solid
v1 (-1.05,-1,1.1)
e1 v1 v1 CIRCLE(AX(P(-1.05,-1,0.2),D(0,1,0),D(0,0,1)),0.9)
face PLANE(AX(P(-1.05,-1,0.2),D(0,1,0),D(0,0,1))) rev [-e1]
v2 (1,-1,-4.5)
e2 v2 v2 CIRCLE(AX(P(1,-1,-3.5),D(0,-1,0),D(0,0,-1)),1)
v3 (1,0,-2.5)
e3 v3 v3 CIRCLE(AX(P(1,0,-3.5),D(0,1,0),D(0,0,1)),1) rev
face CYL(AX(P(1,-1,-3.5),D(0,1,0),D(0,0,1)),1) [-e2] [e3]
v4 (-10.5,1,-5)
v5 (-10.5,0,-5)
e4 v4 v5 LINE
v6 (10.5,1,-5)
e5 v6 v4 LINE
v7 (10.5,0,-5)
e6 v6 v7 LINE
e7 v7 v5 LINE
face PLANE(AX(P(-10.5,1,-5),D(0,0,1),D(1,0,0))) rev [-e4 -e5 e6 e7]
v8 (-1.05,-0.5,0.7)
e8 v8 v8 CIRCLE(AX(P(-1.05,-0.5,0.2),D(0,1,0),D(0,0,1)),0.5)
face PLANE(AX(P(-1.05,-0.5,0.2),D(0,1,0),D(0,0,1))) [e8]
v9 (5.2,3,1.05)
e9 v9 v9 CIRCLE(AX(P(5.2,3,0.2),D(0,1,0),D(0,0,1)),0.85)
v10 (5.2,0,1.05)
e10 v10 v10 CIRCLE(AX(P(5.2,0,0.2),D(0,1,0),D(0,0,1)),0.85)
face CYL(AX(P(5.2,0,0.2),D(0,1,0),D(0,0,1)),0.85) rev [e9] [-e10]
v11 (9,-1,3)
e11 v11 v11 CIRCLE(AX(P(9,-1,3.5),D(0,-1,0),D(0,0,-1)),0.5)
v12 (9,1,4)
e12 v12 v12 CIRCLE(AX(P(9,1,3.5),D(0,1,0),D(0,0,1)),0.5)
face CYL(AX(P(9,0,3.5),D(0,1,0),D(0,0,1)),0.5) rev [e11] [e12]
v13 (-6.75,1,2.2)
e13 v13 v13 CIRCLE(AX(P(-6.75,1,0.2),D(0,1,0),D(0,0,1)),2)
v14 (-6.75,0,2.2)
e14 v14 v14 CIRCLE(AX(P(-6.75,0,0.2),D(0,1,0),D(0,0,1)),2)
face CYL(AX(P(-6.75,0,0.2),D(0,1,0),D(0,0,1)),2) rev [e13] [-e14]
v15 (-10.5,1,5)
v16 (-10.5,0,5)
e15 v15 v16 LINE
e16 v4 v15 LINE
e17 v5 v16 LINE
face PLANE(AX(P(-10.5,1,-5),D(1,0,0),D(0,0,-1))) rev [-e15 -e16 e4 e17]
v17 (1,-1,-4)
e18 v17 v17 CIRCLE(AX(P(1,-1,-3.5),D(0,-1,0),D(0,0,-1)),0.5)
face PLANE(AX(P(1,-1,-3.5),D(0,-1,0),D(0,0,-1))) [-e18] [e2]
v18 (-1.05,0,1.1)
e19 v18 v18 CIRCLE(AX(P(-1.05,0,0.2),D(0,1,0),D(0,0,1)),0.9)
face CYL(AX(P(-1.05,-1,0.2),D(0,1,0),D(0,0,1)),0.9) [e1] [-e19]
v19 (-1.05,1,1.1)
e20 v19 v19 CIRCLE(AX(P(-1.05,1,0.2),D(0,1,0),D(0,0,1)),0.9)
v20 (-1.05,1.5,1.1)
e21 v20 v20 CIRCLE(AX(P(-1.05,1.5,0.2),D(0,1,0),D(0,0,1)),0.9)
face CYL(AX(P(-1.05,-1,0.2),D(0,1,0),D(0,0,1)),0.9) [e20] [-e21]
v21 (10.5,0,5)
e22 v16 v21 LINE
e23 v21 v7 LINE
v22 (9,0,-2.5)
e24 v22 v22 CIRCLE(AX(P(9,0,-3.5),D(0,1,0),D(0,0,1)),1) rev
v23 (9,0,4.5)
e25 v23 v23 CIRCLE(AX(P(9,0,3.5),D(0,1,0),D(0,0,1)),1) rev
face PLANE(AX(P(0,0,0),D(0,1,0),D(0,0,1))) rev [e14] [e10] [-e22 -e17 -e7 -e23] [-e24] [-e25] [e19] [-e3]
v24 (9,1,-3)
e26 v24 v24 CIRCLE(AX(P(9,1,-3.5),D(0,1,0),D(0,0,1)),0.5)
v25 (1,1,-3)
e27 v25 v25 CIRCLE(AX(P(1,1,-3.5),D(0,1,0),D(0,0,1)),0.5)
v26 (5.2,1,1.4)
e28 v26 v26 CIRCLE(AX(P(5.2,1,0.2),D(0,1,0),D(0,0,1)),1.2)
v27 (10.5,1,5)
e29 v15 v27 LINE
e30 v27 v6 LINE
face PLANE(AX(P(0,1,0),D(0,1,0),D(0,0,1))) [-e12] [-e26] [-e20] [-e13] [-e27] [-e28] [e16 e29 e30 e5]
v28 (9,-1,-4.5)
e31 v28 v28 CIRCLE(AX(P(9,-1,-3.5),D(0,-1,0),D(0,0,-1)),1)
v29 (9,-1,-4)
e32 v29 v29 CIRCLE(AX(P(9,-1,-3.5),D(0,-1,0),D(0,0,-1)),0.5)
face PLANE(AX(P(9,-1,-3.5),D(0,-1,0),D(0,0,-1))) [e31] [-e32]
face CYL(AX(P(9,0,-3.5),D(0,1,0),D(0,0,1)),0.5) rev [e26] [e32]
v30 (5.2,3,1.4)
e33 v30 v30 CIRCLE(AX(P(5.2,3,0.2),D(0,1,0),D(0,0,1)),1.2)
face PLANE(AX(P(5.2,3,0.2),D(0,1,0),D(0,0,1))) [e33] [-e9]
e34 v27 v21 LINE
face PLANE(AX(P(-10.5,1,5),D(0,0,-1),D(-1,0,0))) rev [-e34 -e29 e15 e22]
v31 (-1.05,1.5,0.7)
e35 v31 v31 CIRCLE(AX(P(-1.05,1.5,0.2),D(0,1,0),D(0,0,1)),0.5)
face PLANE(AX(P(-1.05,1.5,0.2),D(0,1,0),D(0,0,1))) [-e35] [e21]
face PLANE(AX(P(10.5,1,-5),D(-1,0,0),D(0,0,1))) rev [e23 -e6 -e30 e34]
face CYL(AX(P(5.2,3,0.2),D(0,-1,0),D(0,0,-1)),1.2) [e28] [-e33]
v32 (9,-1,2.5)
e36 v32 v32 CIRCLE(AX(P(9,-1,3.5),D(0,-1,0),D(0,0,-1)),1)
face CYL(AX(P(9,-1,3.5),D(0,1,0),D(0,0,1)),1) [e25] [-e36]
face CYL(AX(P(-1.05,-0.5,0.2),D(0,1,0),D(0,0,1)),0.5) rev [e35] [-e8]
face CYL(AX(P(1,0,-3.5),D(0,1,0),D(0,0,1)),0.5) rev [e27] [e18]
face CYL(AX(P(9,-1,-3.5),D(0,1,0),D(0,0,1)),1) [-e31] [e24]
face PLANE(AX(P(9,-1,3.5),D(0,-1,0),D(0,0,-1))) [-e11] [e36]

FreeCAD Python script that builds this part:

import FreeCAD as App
import Part
import Sketcher

V = App.Vector

doc = App.newDocument("Part")
body = doc.addObject("PartDesign::Body", "Body")

# Sketch on XZ plane
sketch1 = body.newObject("Sketcher::SketchObject", "Sketch")
sketch1.AttachmentSupport = (doc.getObject("XZ_Plane"), [""])
sketch1.MapMode = "FlatFace"
sketch1.addGeometry(Part.LineSegment(V(-10, -5, 0), V(-10, 5, 0)), False)
sketch1.addGeometry(Part.LineSegment(V(-10, 5, 0), V(10, 5, 0)), False)
sketch1.addGeometry(Part.LineSegment(V(10, 5, 0), V(10, -5, 0)), False)
sketch1.addGeometry(Part.LineSegment(V(10, -5, 0), V(-10, -5, 0)), False)
sketch1.addConstraint(Sketcher.Constraint("Coincident", 0, 2, 1, 1))
sketch1.addConstraint(Sketcher.Constraint("Coincident", 1, 2, 2, 1))
sketch1.addConstraint(Sketcher.Constraint("Coincident", 2, 2, 3, 1))
sketch1.addConstraint(Sketcher.Constraint("Coincident", 3, 2, 0, 1))
sketch1.addConstraint(Sketcher.Constraint("Vertical", 0))
sketch1.addConstraint(Sketcher.Constraint("Horizontal", 1))
sketch1.addConstraint(Sketcher.Constraint("Vertical", 2))
sketch1.addConstraint(Sketcher.Constraint("Horizontal", 3))
sketch1.addConstraint(Sketcher.Constraint("Symmetric", 0, 2, 2, 2, -1, 1))
sketch1.addConstraint(Sketcher.Constraint("DistanceX", 1, 1, 1, 2, 21.0))
sketch1.addConstraint(Sketcher.Constraint("DistanceY", 0, 1, 0, 2, 10.0))
pad1 = body.newObject("PartDesign::Pad", "Pad")
pad1.Profile = sketch1
pad1.Length = 1
pad1.Reversed = True

# Sketch on XZ plane
sketch2 = body.newObject("Sketcher::SketchObject", "Sketch001")
sketch2.AttachmentSupport = (doc.getObject("XZ_Plane"), [""])
sketch2.MapMode = "FlatFace"
sketch2.AttachmentOffset = App.Placement(V(0, 0, -1), App.Rotation())
sketch2.addGeometry(Part.Circle(V(5.2, 0.2, 0), V(0, 0, 1), 1.2), False)
sketch2.addConstraint(Sketcher.Constraint("Diameter", 0, 2.4))
sketch2.addConstraint(Sketcher.Constraint("DistanceX", -1, 1, 0, 3, 5.2))
sketch2.addConstraint(Sketcher.Constraint("DistanceY", -1, 1, 0, 3, 0.2))
pad2 = body.newObject("PartDesign::Pad", "Pad001")
pad2.Profile = sketch2
pad2.Length = 2
pad2.Reversed = True

# Sketch on XZ plane
sketch3 = body.newObject("Sketcher::SketchObject", "Sketch002")
sketch3.AttachmentSupport = (doc.getObject("XZ_Plane"), [""])
sketch3.MapMode = "FlatFace"
sketch3.AttachmentOffset = App.Placement(V(0, 0, -3), App.Rotation())
sketch3.addGeometry(Part.Circle(V(5.2, 0.2, 0), V(0, 0, 1), 0.8), False)
sketch3.addConstraint(Sketcher.Constraint("Diameter", 0, 1.7))
sketch3.addConstraint(Sketcher.Constraint("DistanceX", -1, 1, 0, 3, 5.2))
sketch3.addConstraint(Sketcher.Constraint("DistanceY", -1, 1, 0, 3, 0.2))
pocket1 = body.newObject("PartDesign::Pocket", "Pocket")
pocket1.Profile = sketch3
pocket1.Length = 3
pocket1.Reversed = True

# Sketch on XZ plane
sketch4 = body.newObject("Sketcher::SketchObject", "Sketch003")
sketch4.AttachmentSupport = (doc.getObject("XZ_Plane"), [""])
sketch4.MapMode = "FlatFace"
sketch4.AttachmentOffset = App.Placement(V(0, 0, -1), App.Rotation())
sketch4.addGeometry(Part.Circle(V(-1.1, 0.2, 0), V(0, 0, 1), 0.9), False)
sketch4.addConstraint(Sketcher.Constraint("Diameter", 0, 1.8))
sketch4.addConstraint(Sketcher.Constraint("DistanceY", -1, 1, 0, 3, 0.2))
sketch4.addConstraint(Sketcher.Constraint("DistanceX", 0, 3, -1, 1, 1.05))
pad3 = body.newObject("PartDesign::Pad", "Pad002")
pad3.Profile = sketch4
pad3.Type = "TwoLengths"
pad3.Length = 0.5
pad3.Length2 = 2
pad3.Reversed = True

# Sketch on XZ plane
sketch5 = body.newObject("Sketcher::SketchObject", "Sketch004")
sketch5.AttachmentSupport = (doc.getObject("XZ_Plane"), [""])
sketch5.MapMode = "FlatFace"
sketch5.AttachmentOffset = App.Placement(V(0, 0, -1), App.Rotation())
sketch5.addGeometry(Part.Circle(V(-6.8, 0.2, 0), V(0, 0, 1), 2), False)
sketch5.addConstraint(Sketcher.Constraint("Diameter", 0, 4.0))
sketch5.addConstraint(Sketcher.Constraint("DistanceY", -1, 1, 0, 3, 0.2))
sketch5.addConstraint(Sketcher.Constraint("DistanceX", 0, 3, -1, 1, 6.75))
pocket2 = body.newObject("PartDesign::Pocket", "Pocket001")
pocket2.Profile = sketch5
pocket2.Length = 1
pocket2.Reversed = True

# Sketch on XZ plane
sketch6 = body.newObject("Sketcher::SketchObject", "Sketch005")
sketch6.AttachmentSupport = (doc.getObject("XZ_Plane"), [""])
sketch6.MapMode = "FlatFace"
sketch6.AttachmentOffset = App.Placement(V(0, 0, -1), App.Rotation())
sketch6.addGeometry(Part.Circle(V(9, -3.5, 0), V(0, 0, 1), 0.5), False)
sketch6.addGeometry(Part.Circle(V(1, -3.5, 0), V(0, 0, 1), 0.5), False)
sketch6.addGeometry(Part.Circle(V(9, 3.5, 0), V(0, 0, 1), 0.5), False)
sketch6.addConstraint(Sketcher.Constraint("Equal", 0, 1))
sketch6.addConstraint(Sketcher.Constraint("Equal", 1, 2))
sketch6.addConstraint(Sketcher.Constraint("Symmetric", 0, 3, 2, 3, -1))
sketch6.addConstraint(Sketcher.Constraint("Horizontal", 0, 3, 1, 3))
sketch6.addConstraint(Sketcher.Constraint("Diameter", 0, 1.0))
sketch6.addConstraint(Sketcher.Constraint("DistanceX", -1, 1, 0, 3, 9.0))
sketch6.addConstraint(Sketcher.Constraint("DistanceX", -1, 1, 1, 3, 1.0))
sketch6.addConstraint(Sketcher.Constraint("DistanceY", 0, 3, 2, 3, 7.0))
pocket3 = body.newObject("PartDesign::Pocket", "Pocket002")
pocket3.Profile = sketch6
pocket3.Length = 1
pocket3.Reversed = True

# Sketch on XZ plane
sketch7 = body.newObject("Sketcher::SketchObject", "Sketch006")
sketch7.AttachmentSupport = (doc.getObject("XZ_Plane"), [""])
sketch7.MapMode = "FlatFace"
sketch7.AttachmentOffset = App.Placement(V(0, 0, -1.5), App.Rotation())
sketch7.addGeometry(Part.Circle(V(-1.1, 0.2, 0), V(0, 0, 1), 0.5), False)
sketch7.addConstraint(Sketcher.Constraint("Diameter", 0, 1.0))
sketch7.addConstraint(Sketcher.Constraint("DistanceY", -1, 1, 0, 3, 0.2))
sketch7.addConstraint(Sketcher.Constraint("DistanceX", 0, 3, -1, 1, 1.05))
pocket4 = body.newObject("PartDesign::Pocket", "Pocket003")
pocket4.Profile = sketch7
pocket4.Length = 2
pocket4.Reversed = True

# Sketch on XZ plane
sketch8 = body.newObject("Sketcher::SketchObject", "Sketch007")
sketch8.AttachmentSupport = (doc.getObject("XZ_Plane"), [""])
sketch8.MapMode = "FlatFace"
sketch8.addGeometry(Part.Circle(V(9, 3.5, 0), V(0, 0, 1), 1), False)
sketch8.addGeometry(Part.Circle(V(9, -3.5, 0), V(0, 0, 1), 1), False)
sketch8.addGeometry(Part.Circle(V(1, -3.5, 0), V(0, 0, 1), 1), False)
sketch8.addConstraint(Sketcher.Constraint("Equal", 0, 1))
sketch8.addConstraint(Sketcher.Constraint("Equal", 1, 2))
sketch8.addConstraint(Sketcher.Constraint("Symmetric", 0, 3, 1, 3, -1))
sketch8.addConstraint(Sketcher.Constraint("Horizontal", 1, 3, 2, 3))
sketch8.addConstraint(Sketcher.Constraint("Diameter", 0, 2.0))
sketch8.addConstraint(Sketcher.Constraint("DistanceX", -1, 1, 0, 3, 9.0))
sketch8.addConstraint(Sketcher.Constraint("DistanceX", -1, 1, 2, 3, 1.0))
sketch8.addConstraint(Sketcher.Constraint("DistanceY", 1, 3, 0, 3, 7.0))
pad4 = body.newObject("PartDesign::Pad", "Pad003")
pad4.Profile = sketch8
pad4.Length = 1

# Sketch on XZ plane
sketch9 = body.newObject("Sketcher::SketchObject", "Sketch008")
sketch9.AttachmentSupport = (doc.getObject("XZ_Plane"), [""])
sketch9.MapMode = "FlatFace"
sketch9.addGeometry(Part.Circle(V(9, 3.5, 0), V(0, 0, 1), 0.5), False)
sketch9.addGeometry(Part.Circle(V(9, -3.5, 0), V(0, 0, 1), 0.5), False)
sketch9.addGeometry(Part.Circle(V(1, -3.5, 0), V(0, 0, 1), 0.5), False)
sketch9.addConstraint(Sketcher.Constraint("Equal", 0, 1))
sketch9.addConstraint(Sketcher.Constraint("Equal", 1, 2))
sketch9.addConstraint(Sketcher.Constraint("Symmetric", 0, 3, 1, 3, -1))
sketch9.addConstraint(Sketcher.Constraint("Horizontal", 1, 3, 2, 3))
sketch9.addConstraint(Sketcher.Constraint("Diameter", 0, 1.0))
sketch9.addConstraint(Sketcher.Constraint("DistanceX", -1, 1, 0, 3, 9.0))
sketch9.addConstraint(Sketcher.Constraint("DistanceX", -1, 1, 2, 3, 1.0))
sketch9.addConstraint(Sketcher.Constraint("DistanceY", 1, 3, 0, 3, 7.0))
pocket5 = body.newObject("PartDesign::Pocket", "Pocket004")
pocket5.Profile = sketch9
pocket5.Length = 1
pocket5.Reversed = True

doc.recompute()
